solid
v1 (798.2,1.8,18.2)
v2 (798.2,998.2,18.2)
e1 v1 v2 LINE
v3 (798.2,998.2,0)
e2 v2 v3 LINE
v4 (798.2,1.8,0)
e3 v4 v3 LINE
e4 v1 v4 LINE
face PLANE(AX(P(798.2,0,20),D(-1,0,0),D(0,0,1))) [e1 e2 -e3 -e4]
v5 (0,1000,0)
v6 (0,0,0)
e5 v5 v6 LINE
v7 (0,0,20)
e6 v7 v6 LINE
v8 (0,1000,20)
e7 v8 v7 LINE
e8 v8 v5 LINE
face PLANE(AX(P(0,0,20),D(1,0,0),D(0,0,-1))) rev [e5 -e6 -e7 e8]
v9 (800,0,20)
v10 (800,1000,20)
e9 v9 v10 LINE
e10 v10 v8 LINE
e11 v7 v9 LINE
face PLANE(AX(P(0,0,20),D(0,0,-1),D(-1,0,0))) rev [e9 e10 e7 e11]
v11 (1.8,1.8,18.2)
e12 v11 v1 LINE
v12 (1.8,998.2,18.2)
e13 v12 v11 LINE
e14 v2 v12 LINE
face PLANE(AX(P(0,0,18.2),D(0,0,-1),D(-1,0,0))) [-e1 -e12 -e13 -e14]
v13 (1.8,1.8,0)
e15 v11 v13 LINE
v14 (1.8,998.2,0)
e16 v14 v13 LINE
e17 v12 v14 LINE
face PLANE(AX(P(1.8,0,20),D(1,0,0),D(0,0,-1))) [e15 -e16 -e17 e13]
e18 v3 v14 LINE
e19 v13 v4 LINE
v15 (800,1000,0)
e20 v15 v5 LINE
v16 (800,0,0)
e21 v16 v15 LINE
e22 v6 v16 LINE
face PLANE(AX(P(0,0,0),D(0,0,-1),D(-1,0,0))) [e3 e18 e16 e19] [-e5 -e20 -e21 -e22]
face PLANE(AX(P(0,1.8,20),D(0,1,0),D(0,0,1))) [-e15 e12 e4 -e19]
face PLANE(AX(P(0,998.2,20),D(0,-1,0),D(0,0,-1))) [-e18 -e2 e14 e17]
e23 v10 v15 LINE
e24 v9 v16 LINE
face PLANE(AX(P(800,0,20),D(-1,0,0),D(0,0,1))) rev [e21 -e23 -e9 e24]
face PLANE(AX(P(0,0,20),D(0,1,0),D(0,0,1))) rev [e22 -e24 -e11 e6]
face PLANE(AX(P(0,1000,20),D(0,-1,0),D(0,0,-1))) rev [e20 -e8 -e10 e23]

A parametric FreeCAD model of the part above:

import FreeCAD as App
import Part
import Sketcher


def faces_at(feature, points):
    """Names of the faces that lie closest to the given points."""
    faces = feature.Shape.Faces
    near = lambda p: min(range(len(faces)), key=lambda i: faces[i].distToShape(Part.Vertex(*p))[0])
    return sorted({f"Face{near(p) + 1}" for p in points})


def add_polygon(sketch, points):
    """Adds a closed chain of lines whose ends are joined by coincident constraints."""
    first, n = sketch.GeometryCount, len(points)
    for a, b in zip(points, points[1:] + points[:1]):
        sketch.addGeometry(Part.LineSegment(App.Vector(*a, 0), App.Vector(*b, 0)), False)
    for i in range(n):
        sketch.addConstraint(Sketcher.Constraint("Coincident", first + i, 2, first + (i + 1) % n, 1))

doc = App.newDocument("Part")
body = doc.addObject("PartDesign::Body", "Body")

sketch1 = body.newObject("Sketcher::SketchObject", "Sketch")
sketch1.AttachmentSupport = (doc.getObject("XY_Plane"), [""])
sketch1.MapMode = "FlatFace"
add_polygon(sketch1, [(0, 1000), (0, 0), (800, 0), (800, 1000)])
sketch1.addConstraint([
    Sketcher.Constraint("Vertical", 0),
    Sketcher.Constraint("Horizontal", 1),
    Sketcher.Constraint("Vertical", 2),
    Sketcher.Constraint("Horizontal", 3),
    Sketcher.Constraint("Coincident", 0, 2, -1, 1),
    Sketcher.Constraint("DistanceX", 1, 1, 1, 2, 800.0),
    Sketcher.Constraint("DistanceY", 0, 2, 0, 1, 1000.0),
])
pad1 = body.newObject("PartDesign::Pad", "Pad")
pad1.Profile = sketch1
pad1.Length = 20
doc.recompute()

thickness = body.newObject("PartDesign::Thickness", "Thickness")
thickness.Base = (pad1, faces_at(pad1, [(400, 500, 0)]))
thickness.Value = 1.8
thickness.Reversed = True
thickness.Join = "Intersection"

doc.recompute()
